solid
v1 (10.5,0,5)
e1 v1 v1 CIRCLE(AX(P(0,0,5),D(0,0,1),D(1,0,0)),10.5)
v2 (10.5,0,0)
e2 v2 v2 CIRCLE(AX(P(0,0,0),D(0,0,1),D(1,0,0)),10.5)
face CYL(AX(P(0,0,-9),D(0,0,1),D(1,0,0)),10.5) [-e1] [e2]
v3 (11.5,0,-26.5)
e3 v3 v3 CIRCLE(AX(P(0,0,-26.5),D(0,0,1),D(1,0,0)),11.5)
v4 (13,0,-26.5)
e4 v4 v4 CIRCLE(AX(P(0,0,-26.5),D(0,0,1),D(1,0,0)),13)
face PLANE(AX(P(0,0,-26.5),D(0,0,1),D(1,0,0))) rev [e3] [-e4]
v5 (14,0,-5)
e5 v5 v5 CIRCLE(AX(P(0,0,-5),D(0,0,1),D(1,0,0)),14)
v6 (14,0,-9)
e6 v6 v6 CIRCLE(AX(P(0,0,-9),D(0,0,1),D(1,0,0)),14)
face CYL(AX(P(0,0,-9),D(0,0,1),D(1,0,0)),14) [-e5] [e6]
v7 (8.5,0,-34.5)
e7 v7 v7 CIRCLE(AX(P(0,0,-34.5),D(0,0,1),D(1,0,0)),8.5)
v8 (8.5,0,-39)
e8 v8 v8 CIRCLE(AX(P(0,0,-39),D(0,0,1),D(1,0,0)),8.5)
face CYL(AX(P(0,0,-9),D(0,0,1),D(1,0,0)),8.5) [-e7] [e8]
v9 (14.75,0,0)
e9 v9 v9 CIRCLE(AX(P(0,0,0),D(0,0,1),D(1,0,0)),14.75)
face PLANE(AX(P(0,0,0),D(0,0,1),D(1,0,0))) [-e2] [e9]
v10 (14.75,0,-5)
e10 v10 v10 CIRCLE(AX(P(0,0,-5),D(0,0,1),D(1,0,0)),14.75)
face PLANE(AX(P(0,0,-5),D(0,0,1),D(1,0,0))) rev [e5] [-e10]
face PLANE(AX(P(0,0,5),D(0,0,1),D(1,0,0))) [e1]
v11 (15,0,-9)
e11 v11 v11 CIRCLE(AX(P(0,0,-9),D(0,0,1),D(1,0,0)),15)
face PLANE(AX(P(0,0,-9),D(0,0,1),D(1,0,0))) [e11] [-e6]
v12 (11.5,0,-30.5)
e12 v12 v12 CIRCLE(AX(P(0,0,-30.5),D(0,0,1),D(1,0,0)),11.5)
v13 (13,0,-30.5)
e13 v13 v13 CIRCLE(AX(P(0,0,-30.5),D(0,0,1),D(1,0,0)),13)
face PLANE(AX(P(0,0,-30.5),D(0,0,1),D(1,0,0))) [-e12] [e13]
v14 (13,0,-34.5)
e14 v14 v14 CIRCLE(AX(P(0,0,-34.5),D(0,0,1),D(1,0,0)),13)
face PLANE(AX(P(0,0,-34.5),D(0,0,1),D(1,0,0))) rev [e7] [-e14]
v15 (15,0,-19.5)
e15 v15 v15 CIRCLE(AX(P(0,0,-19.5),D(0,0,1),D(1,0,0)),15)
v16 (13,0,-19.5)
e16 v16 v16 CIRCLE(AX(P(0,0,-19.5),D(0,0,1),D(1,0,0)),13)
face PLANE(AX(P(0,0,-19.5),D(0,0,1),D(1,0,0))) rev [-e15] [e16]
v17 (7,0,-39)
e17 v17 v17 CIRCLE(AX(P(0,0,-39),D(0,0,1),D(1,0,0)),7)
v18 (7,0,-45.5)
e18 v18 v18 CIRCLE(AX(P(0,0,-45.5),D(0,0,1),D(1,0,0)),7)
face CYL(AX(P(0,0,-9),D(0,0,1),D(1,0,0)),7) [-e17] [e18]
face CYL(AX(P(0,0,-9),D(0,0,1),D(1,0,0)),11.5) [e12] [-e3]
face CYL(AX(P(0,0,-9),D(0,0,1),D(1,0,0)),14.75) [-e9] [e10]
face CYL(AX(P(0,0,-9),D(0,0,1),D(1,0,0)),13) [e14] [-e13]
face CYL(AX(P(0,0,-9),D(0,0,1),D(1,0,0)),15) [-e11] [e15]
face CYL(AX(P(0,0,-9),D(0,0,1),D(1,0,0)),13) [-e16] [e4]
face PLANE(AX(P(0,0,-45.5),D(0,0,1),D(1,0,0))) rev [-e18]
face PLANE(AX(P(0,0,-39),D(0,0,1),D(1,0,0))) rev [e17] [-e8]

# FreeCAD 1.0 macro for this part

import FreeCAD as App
import Part
import Sketcher
from FreeCAD import Vector
Q = App.Units.Quantity


def add_polygon(sketch, points):
    """Adds a closed chain of lines whose ends are joined by coincident constraints."""
    first, n = sketch.GeometryCount, len(points)
    for a, b in zip(points, points[1:] + points[:1]):
        sketch.addGeometry(Part.LineSegment(App.Vector(*a, 0), App.Vector(*b, 0)), False)
    for i in range(n):
        sketch.addConstraint(Sketcher.Constraint("Coincident", first + i, 2, first + (i + 1) % n, 1))

doc = App.newDocument("Part")
body = doc.addObject("PartDesign::Body", "Body")

sketch1 = doc.addObject("Sketcher::SketchObject", "Sketch")
body.addObject(sketch1)
sketch1.AttachmentSupport = (doc.YZ_Plane, [""])
sketch1.MapMode = "FlatFace"
add_polygon(sketch1, [(10.5, 5), (0, 5), (0, -45.5), (7, -45.5), (7, -39), (8.5, -39), (8.5, -34.5), (13, -34.5), (13, -30.5), (11.5, -30.5), (11.5, -26.5), (13, -26.5), (13, -19.5), (15, -19.5), (15, -9), (14, -9), (14, -5), (14.8, -5), (14.8, 0), (10.5, 0)])
sketch1.addConstraint([
    Sketcher.Constraint("Horizontal", 0),
    Sketcher.Constraint("Vertical", 1),
    Sketcher.Constraint("Horizontal", 2),
    Sketcher.Constraint("Vertical", 3),
    Sketcher.Constraint("Horizontal", 4),
    Sketcher.Constraint("Vertical", 5),
    Sketcher.Constraint("Horizontal", 6),
    Sketcher.Constraint("Vertical", 7),
    Sketcher.Constraint("Horizontal", 8),
    Sketcher.Constraint("Vertical", 9),
    Sketcher.Constraint("Horizontal", 10),
    Sketcher.Constraint("Vertical", 11),
    Sketcher.Constraint("Horizontal", 12),
    Sketcher.Constraint("Vertical", 13),
    Sketcher.Constraint("Horizontal", 14),
    Sketcher.Constraint("Vertical", 15),
    Sketcher.Constraint("Horizontal", 16),
    Sketcher.Constraint("Vertical", 17),
    Sketcher.Constraint("Horizontal", 18),
    Sketcher.Constraint("Vertical", 19),
    Sketcher.Constraint("PointOnObject", 0, 2, -2),
    Sketcher.Constraint("PointOnObject", 17, 2, -1),
    Sketcher.Constraint("Vertical", 7, 2, 10, 2),
    Sketcher.Constraint("Equal", 4, 8),
    Sketcher.Constraint("Equal", 6, 5),
    Sketcher.Constraint("Equal", 7, 9),
    Sketcher.Constraint("Equal", 2, 11),
    Sketcher.Constraint("Equal", 0, 13),
    Sketcher.Constraint("Equal", 9, 15),
    Sketcher.Constraint("Equal", 17, 19),
    Sketcher.Constraint("DistanceX", 2, 1, 2, 2, Q("7 mm")),
    Sketcher.Constraint("DistanceX", 12, 1, 12, 2, Q("2 mm")),
    Sketcher.Constraint("DistanceX", 14, 2, 14, 1, Q("1 mm")),
    Sketcher.Constraint("DistanceY", 7, 1, 7, 2, Q("4 mm")),
    Sketcher.Constraint("DistanceY", 17, 1, 17, 2, Q("5 mm")),
    Sketcher.Constraint("DistanceX", 0, 2, 0, 1, Q("10.5 mm")),
    Sketcher.Constraint("DistanceX", 4, 1, 4, 2, Q("1.5 mm")),
    Sketcher.Constraint("DistanceX", 6, 1, 6, 2, Q("4.5 mm")),
    Sketcher.Constraint("DistanceY", 1, 2, 1, 1, Q("50.5 mm")),
    Sketcher.Constraint("DistanceX", 16, 1, 16, 2, Q("0.75 mm")),
])
revolution = doc.addObject("PartDesign::Revolution", "Revolution")
body.addObject(revolution)
revolution.Profile = sketch1
revolution.ReferenceAxis = (sketch1, ["V_Axis"])
revolution.Angle = 360

doc.recompute()
